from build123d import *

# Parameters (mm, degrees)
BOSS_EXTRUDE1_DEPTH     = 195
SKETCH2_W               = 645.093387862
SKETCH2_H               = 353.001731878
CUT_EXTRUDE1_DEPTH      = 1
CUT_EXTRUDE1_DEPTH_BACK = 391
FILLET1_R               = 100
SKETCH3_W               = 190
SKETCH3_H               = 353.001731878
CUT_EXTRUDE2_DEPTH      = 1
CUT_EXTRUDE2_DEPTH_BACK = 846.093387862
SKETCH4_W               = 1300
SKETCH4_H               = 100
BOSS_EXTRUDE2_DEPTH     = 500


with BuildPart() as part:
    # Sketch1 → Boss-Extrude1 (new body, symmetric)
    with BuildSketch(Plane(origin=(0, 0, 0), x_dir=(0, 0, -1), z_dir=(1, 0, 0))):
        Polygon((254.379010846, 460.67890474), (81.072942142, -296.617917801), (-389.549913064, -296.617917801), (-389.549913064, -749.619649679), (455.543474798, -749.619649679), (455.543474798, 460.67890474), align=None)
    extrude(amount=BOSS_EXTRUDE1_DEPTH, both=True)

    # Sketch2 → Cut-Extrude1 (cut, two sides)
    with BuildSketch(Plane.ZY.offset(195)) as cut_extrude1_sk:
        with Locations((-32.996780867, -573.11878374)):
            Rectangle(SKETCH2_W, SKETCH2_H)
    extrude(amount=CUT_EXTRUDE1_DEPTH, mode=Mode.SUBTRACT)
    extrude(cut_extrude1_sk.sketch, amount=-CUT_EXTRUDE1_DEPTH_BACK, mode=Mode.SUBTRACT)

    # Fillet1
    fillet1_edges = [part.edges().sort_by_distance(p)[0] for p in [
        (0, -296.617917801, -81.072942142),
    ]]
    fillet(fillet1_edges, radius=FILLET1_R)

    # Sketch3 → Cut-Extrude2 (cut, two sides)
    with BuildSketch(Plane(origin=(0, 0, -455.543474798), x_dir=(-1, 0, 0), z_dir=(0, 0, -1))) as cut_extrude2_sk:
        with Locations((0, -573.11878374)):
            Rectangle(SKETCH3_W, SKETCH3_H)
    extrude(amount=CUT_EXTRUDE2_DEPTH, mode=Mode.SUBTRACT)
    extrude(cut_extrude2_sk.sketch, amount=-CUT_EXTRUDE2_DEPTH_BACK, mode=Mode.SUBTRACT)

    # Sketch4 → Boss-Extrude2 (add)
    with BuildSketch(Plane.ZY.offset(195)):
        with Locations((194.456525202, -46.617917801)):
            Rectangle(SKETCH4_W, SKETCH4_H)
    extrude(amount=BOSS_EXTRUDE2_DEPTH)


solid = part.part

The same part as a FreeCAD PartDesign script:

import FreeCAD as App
import Part
import Sketcher
Q = App.Units.Quantity


def edges_at(feature, points):
    """Names of the edges that pass closest to the given points."""
    edges = feature.Shape.Edges
    near = lambda p: min(range(len(edges)), key=lambda i: edges[i].distToShape(Part.Vertex(*p))[0])
    return sorted({f"Edge{near(p) + 1}" for p in points})


def add_polygon(sketch, points):
    """Adds a closed chain of lines whose ends are joined by coincident constraints."""
    first, n = sketch.GeometryCount, len(points)
    for a, b in zip(points, points[1:] + points[:1]):
        sketch.addGeometry(Part.LineSegment(App.Vector(*a, 0), App.Vector(*b, 0)), False)
    for i in range(n):
        sketch.addConstraint(Sketcher.Constraint("Coincident", first + i, 2, first + (i + 1) % n, 1))

doc = App.newDocument("Part")
body = doc.addObject("PartDesign::Body", "Body")

# Sketch on YZ plane
sketch1 = doc.addObject("Sketcher::SketchObject", "Sketch")
body.addObject(sketch1)
sketch1.AttachmentSupport = (doc.YZ_Plane, [""])
sketch1.MapMode = "FlatFace"
add_polygon(sketch1, [(460.678905, -254.379011), (-296.617918, -81.072942), (-296.617918, 389.549913), (-749.61965, 389.549913), (-749.61965, -455.543475), (460.678905, -455.543475)])  # lines 0-5
sketch1.addConstraint([
    Sketcher.Constraint("Vertical", 1),
    Sketcher.Constraint("Horizontal", 2),
    Sketcher.Constraint("Vertical", 3),
    Sketcher.Constraint("Horizontal", 4),
    Sketcher.Constraint("Vertical", 5),
    Sketcher.Constraint("DistanceX", 2, 2, 2, 1, Q("453.001732 mm")),
    Sketcher.Constraint("DistanceX", 4, 1, 4, 2, Q("1210.298554 mm")),
    Sketcher.Constraint("DistanceY", 1, 1, 1, 2, Q("470.622855 mm")),
    Sketcher.Constraint("DistanceY", 3, 2, 3, 1, Q("845.093388 mm")),
    Sketcher.Constraint("DistanceY", 5, 1, 5, 2, Q("201.164464 mm")),
    Sketcher.Constraint("DistanceX", 2, 2, -1, 1, Q("749.61965 mm")),
    Sketcher.Constraint("DistanceY", 5, 2, -1, 1, Q("254.379011 mm")),
])
pad1 = doc.addObject("PartDesign::Pad", "Pad")
body.addObject(pad1)
pad1.Profile = sketch1
pad1.Length = 390
pad1.Midplane = True

# Sketch on YZ plane
sketch2 = doc.addObject("Sketcher::SketchObject", "Sketch001")
body.addObject(sketch2)
sketch2.AttachmentSupport = (doc.YZ_Plane, [""])
sketch2.MapMode = "FlatFace"
sketch2.AttachmentOffset = App.Placement(App.Vector(0, 0, -195), App.Rotation())
add_polygon(sketch2, [(-396.617918, -355.543475), (-749.61965, -355.543475), (-749.61965, 289.549913), (-396.617918, 289.549913)])  # lines 0-3
sketch2.addConstraint([
    Sketcher.Constraint("Horizontal", 0),
    Sketcher.Constraint("Vertical", 1),
    Sketcher.Constraint("Horizontal", 2),
    Sketcher.Constraint("Vertical", 3),
    Sketcher.Constraint("DistanceX", 0, 2, 0, 1, Q("353.001732 mm")),
    Sketcher.Constraint("DistanceY", 1, 1, 1, 2, Q("645.093388 mm")),
    Sketcher.Constraint("DistanceX", 0, 2, -1, 1, Q("749.61965 mm")),
    Sketcher.Constraint("DistanceY", 0, 2, -1, 1, Q("355.543475 mm")),
])
pocket1 = doc.addObject("PartDesign::Pocket", "Pocket")
body.addObject(pocket1)
pocket1.Profile = sketch2
pocket1.Type = "ThroughAll"
pocket1.Midplane = True
doc.recompute()

fillet = doc.addObject("PartDesign::Fillet", "Fillet")
body.addObject(fillet)
fillet.Base = (pocket1, edges_at(pocket1, [(0, -296.618, -81.073)]))
fillet.Radius = 100

# Sketch on XY plane
sketch3 = doc.addObject("Sketcher::SketchObject", "Sketch002")
body.addObject(sketch3)
sketch3.AttachmentSupport = (doc.XY_Plane, [""])
sketch3.MapMode = "FlatFace"
sketch3.AttachmentOffset = App.Placement(App.Vector(0, 0, -455.543475), App.Rotation())
add_polygon(sketch3, [(95, -396.617918), (95, -749.61965), (-95, -749.61965), (-95, -396.617918)])  # lines 0-3
sketch3.addConstraint([
    Sketcher.Constraint("Vertical", 0),
    Sketcher.Constraint("Horizontal", 1),
    Sketcher.Constraint("Vertical", 2),
    Sketcher.Constraint("Horizontal", 3),
    Sketcher.Constraint("DistanceX", 1, 2, 1, 1, Q("190 mm")),
    Sketcher.Constraint("DistanceX", -1, 1, 0, 2, Q("95 mm")),
    Sketcher.Constraint("DistanceY", 0, 2, 0, 1, Q("353.001732 mm")),
    Sketcher.Constraint("DistanceY", 0, 2, -1, 1, Q("749.61965 mm")),
])
pocket2 = doc.addObject("PartDesign::Pocket", "Pocket001")
body.addObject(pocket2)
pocket2.Profile = sketch3
pocket2.Type = "ThroughAll"
pocket2.Midplane = True

# Sketch on YZ plane
sketch4 = doc.addObject("Sketcher::SketchObject", "Sketch003")
body.addObject(sketch4)
sketch4.AttachmentSupport = (doc.YZ_Plane, [""])
sketch4.MapMode = "FlatFace"
sketch4.AttachmentOffset = App.Placement(App.Vector(0, 0, -195), App.Rotation())
add_polygon(sketch4, [(3.382082, -455.543475), (-96.617918, -455.543475), (-96.617918, 844.456525), (3.382082, 844.456525)])  # lines 0-3
sketch4.addConstraint([
    Sketcher.Constraint("Horizontal", 0),
    Sketcher.Constraint("Vertical", 1),
    Sketcher.Constraint("Horizontal", 2),
    Sketcher.Constraint("Vertical", 3),
    Sketcher.Constraint("DistanceX", 0, 2, 0, 1, Q("100 mm")),
    Sketcher.Constraint("DistanceY", 1, 1, 1, 2, Q("1300 mm")),
    Sketcher.Constraint("DistanceX", 0, 2, -1, 1, Q("96.617918 mm")),
    Sketcher.Constraint("DistanceY", 0, 2, -1, 1, Q("455.543475 mm")),
])
pad2 = doc.addObject("PartDesign::Pad", "Pad001")
body.addObject(pad2)
pad2.Profile = sketch4
pad2.Length = 500
pad2.Reversed = True

doc.recompute()
